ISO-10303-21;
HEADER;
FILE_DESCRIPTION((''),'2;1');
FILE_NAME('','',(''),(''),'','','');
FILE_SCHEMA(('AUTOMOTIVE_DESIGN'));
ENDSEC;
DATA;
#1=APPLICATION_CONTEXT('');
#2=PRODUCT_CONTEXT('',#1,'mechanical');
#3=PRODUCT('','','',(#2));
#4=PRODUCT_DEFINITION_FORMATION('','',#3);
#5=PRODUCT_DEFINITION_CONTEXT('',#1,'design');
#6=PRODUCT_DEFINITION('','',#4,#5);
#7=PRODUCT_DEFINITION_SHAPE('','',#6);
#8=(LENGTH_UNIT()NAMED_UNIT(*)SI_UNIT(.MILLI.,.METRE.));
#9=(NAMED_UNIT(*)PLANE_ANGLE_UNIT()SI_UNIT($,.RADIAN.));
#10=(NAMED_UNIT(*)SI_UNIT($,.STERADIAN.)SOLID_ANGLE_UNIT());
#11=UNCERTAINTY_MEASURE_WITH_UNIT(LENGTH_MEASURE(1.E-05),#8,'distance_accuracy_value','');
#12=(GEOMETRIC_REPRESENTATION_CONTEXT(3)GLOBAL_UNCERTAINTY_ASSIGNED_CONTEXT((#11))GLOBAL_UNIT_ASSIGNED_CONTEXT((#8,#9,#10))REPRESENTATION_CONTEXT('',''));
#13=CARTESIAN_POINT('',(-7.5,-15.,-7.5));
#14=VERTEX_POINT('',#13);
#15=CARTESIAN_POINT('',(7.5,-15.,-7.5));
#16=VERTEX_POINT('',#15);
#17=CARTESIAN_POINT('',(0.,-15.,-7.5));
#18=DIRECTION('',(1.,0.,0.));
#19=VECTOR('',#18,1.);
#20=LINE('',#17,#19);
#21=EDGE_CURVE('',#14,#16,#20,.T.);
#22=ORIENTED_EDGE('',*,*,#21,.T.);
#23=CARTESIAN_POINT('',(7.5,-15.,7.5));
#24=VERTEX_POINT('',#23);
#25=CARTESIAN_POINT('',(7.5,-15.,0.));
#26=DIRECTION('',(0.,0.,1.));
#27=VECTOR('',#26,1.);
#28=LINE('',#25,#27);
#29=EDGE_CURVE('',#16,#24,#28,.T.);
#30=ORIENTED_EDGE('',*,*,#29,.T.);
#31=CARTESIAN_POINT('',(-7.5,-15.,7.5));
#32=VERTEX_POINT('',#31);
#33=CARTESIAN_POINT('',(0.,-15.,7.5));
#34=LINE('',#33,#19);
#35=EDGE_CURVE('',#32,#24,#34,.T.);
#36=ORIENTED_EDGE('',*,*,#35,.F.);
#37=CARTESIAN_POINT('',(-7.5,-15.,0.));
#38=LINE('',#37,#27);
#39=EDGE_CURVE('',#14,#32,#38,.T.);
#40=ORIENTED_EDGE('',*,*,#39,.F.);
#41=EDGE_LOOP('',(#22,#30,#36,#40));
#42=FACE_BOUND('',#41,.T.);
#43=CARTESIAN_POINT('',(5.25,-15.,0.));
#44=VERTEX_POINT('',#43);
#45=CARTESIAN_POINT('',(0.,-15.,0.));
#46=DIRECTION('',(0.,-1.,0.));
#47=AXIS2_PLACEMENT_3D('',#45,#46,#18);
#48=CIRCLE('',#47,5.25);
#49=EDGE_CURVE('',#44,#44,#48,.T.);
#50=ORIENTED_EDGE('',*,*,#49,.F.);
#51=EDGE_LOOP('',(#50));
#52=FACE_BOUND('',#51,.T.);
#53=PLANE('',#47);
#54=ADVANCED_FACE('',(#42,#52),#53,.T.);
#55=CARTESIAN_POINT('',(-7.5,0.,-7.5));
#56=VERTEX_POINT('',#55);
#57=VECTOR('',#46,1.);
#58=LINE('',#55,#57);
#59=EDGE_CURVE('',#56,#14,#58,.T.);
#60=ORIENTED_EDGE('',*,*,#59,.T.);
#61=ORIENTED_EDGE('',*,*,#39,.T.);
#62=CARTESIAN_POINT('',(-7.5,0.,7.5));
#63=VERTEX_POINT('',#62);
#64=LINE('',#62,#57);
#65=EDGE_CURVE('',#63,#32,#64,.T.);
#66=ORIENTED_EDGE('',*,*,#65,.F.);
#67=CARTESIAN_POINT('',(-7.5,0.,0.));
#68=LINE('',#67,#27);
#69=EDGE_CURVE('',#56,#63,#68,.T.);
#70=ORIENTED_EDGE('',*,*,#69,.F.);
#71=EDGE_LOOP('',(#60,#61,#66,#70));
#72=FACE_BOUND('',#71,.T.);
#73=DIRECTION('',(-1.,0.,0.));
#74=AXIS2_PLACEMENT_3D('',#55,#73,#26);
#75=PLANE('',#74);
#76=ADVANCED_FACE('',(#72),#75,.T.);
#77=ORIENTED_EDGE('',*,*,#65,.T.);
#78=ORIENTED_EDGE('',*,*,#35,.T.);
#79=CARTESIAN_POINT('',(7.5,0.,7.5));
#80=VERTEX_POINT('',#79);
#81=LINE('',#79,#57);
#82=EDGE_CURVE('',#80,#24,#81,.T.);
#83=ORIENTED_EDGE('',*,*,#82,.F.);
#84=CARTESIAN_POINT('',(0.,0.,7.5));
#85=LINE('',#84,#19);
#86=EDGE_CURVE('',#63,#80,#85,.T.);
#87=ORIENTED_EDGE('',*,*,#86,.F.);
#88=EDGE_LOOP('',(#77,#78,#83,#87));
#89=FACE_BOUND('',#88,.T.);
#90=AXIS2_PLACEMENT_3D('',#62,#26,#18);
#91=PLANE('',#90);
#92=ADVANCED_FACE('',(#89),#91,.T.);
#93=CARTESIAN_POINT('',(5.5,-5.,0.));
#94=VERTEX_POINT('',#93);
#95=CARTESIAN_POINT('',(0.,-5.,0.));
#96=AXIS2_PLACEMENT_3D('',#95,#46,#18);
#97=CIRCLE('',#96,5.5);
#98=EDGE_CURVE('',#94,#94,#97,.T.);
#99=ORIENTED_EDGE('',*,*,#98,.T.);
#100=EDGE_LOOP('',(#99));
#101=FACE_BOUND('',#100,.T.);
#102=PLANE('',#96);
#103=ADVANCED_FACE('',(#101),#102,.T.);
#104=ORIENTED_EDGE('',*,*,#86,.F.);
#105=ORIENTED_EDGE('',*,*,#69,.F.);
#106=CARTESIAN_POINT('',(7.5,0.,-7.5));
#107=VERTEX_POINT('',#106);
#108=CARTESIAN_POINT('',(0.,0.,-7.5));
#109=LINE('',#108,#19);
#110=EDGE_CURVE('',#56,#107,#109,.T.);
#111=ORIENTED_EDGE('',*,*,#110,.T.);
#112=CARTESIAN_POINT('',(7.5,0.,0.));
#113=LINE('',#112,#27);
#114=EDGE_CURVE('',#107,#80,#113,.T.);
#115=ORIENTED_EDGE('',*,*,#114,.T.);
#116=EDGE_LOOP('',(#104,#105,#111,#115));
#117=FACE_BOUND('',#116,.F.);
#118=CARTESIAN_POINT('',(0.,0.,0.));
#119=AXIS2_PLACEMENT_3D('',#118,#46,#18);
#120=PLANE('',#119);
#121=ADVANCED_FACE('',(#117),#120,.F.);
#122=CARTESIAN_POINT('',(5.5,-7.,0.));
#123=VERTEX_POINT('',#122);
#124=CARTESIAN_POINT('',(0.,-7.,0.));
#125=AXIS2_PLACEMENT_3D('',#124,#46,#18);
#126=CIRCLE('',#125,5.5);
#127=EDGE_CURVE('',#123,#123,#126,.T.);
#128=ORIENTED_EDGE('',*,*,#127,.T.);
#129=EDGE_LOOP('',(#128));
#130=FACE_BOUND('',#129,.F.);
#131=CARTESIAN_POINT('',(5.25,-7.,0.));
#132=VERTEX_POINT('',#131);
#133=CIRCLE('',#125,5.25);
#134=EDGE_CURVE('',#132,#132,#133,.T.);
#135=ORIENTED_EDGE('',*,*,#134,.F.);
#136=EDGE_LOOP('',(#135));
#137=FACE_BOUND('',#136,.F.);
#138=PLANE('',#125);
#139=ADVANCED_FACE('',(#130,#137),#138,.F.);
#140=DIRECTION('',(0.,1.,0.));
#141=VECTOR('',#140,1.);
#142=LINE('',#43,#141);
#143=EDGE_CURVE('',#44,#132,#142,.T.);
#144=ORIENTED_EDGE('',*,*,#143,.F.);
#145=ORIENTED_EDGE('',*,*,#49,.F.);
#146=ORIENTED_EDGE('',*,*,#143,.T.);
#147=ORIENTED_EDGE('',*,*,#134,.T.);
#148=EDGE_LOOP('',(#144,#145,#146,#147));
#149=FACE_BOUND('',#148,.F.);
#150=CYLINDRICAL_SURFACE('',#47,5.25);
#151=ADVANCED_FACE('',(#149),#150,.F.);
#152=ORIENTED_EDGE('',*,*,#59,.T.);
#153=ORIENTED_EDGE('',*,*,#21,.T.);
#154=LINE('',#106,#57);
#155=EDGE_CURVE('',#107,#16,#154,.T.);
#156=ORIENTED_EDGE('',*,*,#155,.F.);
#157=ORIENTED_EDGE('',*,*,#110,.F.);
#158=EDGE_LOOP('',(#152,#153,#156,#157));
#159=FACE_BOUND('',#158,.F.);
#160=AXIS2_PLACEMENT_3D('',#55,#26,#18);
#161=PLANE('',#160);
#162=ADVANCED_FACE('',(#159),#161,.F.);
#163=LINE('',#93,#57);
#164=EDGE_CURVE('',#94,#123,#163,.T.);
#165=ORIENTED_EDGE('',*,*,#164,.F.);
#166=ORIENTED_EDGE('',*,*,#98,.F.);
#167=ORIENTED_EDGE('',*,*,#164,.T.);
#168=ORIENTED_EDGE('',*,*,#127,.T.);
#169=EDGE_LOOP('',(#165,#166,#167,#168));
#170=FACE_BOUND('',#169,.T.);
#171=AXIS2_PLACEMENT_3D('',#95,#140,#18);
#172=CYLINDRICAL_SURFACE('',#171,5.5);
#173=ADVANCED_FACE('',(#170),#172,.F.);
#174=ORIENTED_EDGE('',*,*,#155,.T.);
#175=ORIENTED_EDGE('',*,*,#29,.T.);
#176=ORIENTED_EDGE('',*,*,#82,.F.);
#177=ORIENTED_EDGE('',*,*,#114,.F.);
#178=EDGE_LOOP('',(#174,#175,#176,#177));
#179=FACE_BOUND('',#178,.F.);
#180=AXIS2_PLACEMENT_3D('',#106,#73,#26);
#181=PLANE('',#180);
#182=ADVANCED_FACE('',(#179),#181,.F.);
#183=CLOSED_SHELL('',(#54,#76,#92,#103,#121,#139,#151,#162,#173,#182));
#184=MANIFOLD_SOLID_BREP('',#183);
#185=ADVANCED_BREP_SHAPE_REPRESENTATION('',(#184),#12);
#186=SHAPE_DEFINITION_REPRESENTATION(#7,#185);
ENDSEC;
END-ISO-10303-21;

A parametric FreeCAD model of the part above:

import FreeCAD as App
import Part
import Sketcher

V = App.Vector
Q = App.Units.Quantity

doc = App.newDocument("Part")
body = doc.addObject("PartDesign::Body", "Body")

# Sketch on XZ plane
sketch1 = body.newObject("Sketcher::SketchObject", "Sketch")
sketch1.AttachmentSupport = (doc.getObject("XZ_Plane"), [""])
sketch1.MapMode = "FlatFace"
sketch1.addGeometry([
    Part.LineSegment(V(-7.5, 7.5, 0), V(-7.5, -7.5, 0)),
    Part.LineSegment(V(-7.5, -7.5, 0), V(7.5, -7.5, 0)),
    Part.LineSegment(V(7.5, -7.5, 0), V(7.5, 7.5, 0)),
    Part.LineSegment(V(7.5, 7.5, 0), V(-7.5, 7.5, 0)),
], False)
sketch1.addConstraint([
    Sketcher.Constraint("Coincident", 0, 2, 1, 1),
    Sketcher.Constraint("Coincident", 1, 2, 2, 1),
    Sketcher.Constraint("Coincident", 2, 2, 3, 1),
    Sketcher.Constraint("Coincident", 3, 2, 0, 1),
    Sketcher.Constraint("Vertical", 0),
    Sketcher.Constraint("Horizontal", 1),
    Sketcher.Constraint("Vertical", 2),
    Sketcher.Constraint("Horizontal", 3),
    Sketcher.Constraint("Symmetric", 0, 2, 2, 2, -1, 1),
    Sketcher.Constraint("Equal", 3, 0),
    Sketcher.Constraint("DistanceX", 1, 1, 1, 2, Q("15 mm")),
])
pad1 = body.newObject("PartDesign::Pad", "Pad")
pad1.Profile = sketch1
pad1.Length = 15

# Sketch on XZ plane
sketch2 = body.newObject("Sketcher::SketchObject", "Sketch001")
sketch2.AttachmentSupport = (doc.getObject("XZ_Plane"), [""])
sketch2.MapMode = "FlatFace"
sketch2.AttachmentOffset = App.Placement(V(0, 0, 15), App.Rotation())
sketch2.addGeometry(Part.Circle(V(0, 0, 0), V(0, 0, 1), 5.25), False)
sketch2.addConstraint([
    Sketcher.Constraint("Coincident", 0, 3, -1, 1),
    Sketcher.Constraint("Diameter", 0, Q("10.5 mm")),
])
pocket1 = body.newObject("PartDesign::Pocket", "Pocket")
pocket1.Profile = sketch2
pocket1.Length = 10

# Sketch on XZ plane
sketch3 = body.newObject("Sketcher::SketchObject", "Sketch002")
sketch3.AttachmentSupport = (doc.getObject("XZ_Plane"), [""])
sketch3.MapMode = "FlatFace"
sketch3.AttachmentOffset = App.Placement(V(0, 0, 5), App.Rotation())
sketch3.addGeometry([
    Part.Circle(V(0, 0, 0), V(0, 0, 1), 5.5),
    Part.Circle(V(0, 0, 0), V(0, 0, 1), 5.25),
], False)
sketch3.addConstraint([
    Sketcher.Constraint("Coincident", 0, 3, -1, 1),
    Sketcher.Constraint("Coincident", 1, 3, -1, 1),
    Sketcher.Constraint("Diameter", 0, Q("11 mm")),
    Sketcher.Constraint("Diameter", 1, Q("10.5 mm")),
])
pocket2 = body.newObject("PartDesign::Pocket", "Pocket001")
pocket2.Profile = sketch3
pocket2.Length = 2
pocket2.Reversed = True

doc.recompute()
